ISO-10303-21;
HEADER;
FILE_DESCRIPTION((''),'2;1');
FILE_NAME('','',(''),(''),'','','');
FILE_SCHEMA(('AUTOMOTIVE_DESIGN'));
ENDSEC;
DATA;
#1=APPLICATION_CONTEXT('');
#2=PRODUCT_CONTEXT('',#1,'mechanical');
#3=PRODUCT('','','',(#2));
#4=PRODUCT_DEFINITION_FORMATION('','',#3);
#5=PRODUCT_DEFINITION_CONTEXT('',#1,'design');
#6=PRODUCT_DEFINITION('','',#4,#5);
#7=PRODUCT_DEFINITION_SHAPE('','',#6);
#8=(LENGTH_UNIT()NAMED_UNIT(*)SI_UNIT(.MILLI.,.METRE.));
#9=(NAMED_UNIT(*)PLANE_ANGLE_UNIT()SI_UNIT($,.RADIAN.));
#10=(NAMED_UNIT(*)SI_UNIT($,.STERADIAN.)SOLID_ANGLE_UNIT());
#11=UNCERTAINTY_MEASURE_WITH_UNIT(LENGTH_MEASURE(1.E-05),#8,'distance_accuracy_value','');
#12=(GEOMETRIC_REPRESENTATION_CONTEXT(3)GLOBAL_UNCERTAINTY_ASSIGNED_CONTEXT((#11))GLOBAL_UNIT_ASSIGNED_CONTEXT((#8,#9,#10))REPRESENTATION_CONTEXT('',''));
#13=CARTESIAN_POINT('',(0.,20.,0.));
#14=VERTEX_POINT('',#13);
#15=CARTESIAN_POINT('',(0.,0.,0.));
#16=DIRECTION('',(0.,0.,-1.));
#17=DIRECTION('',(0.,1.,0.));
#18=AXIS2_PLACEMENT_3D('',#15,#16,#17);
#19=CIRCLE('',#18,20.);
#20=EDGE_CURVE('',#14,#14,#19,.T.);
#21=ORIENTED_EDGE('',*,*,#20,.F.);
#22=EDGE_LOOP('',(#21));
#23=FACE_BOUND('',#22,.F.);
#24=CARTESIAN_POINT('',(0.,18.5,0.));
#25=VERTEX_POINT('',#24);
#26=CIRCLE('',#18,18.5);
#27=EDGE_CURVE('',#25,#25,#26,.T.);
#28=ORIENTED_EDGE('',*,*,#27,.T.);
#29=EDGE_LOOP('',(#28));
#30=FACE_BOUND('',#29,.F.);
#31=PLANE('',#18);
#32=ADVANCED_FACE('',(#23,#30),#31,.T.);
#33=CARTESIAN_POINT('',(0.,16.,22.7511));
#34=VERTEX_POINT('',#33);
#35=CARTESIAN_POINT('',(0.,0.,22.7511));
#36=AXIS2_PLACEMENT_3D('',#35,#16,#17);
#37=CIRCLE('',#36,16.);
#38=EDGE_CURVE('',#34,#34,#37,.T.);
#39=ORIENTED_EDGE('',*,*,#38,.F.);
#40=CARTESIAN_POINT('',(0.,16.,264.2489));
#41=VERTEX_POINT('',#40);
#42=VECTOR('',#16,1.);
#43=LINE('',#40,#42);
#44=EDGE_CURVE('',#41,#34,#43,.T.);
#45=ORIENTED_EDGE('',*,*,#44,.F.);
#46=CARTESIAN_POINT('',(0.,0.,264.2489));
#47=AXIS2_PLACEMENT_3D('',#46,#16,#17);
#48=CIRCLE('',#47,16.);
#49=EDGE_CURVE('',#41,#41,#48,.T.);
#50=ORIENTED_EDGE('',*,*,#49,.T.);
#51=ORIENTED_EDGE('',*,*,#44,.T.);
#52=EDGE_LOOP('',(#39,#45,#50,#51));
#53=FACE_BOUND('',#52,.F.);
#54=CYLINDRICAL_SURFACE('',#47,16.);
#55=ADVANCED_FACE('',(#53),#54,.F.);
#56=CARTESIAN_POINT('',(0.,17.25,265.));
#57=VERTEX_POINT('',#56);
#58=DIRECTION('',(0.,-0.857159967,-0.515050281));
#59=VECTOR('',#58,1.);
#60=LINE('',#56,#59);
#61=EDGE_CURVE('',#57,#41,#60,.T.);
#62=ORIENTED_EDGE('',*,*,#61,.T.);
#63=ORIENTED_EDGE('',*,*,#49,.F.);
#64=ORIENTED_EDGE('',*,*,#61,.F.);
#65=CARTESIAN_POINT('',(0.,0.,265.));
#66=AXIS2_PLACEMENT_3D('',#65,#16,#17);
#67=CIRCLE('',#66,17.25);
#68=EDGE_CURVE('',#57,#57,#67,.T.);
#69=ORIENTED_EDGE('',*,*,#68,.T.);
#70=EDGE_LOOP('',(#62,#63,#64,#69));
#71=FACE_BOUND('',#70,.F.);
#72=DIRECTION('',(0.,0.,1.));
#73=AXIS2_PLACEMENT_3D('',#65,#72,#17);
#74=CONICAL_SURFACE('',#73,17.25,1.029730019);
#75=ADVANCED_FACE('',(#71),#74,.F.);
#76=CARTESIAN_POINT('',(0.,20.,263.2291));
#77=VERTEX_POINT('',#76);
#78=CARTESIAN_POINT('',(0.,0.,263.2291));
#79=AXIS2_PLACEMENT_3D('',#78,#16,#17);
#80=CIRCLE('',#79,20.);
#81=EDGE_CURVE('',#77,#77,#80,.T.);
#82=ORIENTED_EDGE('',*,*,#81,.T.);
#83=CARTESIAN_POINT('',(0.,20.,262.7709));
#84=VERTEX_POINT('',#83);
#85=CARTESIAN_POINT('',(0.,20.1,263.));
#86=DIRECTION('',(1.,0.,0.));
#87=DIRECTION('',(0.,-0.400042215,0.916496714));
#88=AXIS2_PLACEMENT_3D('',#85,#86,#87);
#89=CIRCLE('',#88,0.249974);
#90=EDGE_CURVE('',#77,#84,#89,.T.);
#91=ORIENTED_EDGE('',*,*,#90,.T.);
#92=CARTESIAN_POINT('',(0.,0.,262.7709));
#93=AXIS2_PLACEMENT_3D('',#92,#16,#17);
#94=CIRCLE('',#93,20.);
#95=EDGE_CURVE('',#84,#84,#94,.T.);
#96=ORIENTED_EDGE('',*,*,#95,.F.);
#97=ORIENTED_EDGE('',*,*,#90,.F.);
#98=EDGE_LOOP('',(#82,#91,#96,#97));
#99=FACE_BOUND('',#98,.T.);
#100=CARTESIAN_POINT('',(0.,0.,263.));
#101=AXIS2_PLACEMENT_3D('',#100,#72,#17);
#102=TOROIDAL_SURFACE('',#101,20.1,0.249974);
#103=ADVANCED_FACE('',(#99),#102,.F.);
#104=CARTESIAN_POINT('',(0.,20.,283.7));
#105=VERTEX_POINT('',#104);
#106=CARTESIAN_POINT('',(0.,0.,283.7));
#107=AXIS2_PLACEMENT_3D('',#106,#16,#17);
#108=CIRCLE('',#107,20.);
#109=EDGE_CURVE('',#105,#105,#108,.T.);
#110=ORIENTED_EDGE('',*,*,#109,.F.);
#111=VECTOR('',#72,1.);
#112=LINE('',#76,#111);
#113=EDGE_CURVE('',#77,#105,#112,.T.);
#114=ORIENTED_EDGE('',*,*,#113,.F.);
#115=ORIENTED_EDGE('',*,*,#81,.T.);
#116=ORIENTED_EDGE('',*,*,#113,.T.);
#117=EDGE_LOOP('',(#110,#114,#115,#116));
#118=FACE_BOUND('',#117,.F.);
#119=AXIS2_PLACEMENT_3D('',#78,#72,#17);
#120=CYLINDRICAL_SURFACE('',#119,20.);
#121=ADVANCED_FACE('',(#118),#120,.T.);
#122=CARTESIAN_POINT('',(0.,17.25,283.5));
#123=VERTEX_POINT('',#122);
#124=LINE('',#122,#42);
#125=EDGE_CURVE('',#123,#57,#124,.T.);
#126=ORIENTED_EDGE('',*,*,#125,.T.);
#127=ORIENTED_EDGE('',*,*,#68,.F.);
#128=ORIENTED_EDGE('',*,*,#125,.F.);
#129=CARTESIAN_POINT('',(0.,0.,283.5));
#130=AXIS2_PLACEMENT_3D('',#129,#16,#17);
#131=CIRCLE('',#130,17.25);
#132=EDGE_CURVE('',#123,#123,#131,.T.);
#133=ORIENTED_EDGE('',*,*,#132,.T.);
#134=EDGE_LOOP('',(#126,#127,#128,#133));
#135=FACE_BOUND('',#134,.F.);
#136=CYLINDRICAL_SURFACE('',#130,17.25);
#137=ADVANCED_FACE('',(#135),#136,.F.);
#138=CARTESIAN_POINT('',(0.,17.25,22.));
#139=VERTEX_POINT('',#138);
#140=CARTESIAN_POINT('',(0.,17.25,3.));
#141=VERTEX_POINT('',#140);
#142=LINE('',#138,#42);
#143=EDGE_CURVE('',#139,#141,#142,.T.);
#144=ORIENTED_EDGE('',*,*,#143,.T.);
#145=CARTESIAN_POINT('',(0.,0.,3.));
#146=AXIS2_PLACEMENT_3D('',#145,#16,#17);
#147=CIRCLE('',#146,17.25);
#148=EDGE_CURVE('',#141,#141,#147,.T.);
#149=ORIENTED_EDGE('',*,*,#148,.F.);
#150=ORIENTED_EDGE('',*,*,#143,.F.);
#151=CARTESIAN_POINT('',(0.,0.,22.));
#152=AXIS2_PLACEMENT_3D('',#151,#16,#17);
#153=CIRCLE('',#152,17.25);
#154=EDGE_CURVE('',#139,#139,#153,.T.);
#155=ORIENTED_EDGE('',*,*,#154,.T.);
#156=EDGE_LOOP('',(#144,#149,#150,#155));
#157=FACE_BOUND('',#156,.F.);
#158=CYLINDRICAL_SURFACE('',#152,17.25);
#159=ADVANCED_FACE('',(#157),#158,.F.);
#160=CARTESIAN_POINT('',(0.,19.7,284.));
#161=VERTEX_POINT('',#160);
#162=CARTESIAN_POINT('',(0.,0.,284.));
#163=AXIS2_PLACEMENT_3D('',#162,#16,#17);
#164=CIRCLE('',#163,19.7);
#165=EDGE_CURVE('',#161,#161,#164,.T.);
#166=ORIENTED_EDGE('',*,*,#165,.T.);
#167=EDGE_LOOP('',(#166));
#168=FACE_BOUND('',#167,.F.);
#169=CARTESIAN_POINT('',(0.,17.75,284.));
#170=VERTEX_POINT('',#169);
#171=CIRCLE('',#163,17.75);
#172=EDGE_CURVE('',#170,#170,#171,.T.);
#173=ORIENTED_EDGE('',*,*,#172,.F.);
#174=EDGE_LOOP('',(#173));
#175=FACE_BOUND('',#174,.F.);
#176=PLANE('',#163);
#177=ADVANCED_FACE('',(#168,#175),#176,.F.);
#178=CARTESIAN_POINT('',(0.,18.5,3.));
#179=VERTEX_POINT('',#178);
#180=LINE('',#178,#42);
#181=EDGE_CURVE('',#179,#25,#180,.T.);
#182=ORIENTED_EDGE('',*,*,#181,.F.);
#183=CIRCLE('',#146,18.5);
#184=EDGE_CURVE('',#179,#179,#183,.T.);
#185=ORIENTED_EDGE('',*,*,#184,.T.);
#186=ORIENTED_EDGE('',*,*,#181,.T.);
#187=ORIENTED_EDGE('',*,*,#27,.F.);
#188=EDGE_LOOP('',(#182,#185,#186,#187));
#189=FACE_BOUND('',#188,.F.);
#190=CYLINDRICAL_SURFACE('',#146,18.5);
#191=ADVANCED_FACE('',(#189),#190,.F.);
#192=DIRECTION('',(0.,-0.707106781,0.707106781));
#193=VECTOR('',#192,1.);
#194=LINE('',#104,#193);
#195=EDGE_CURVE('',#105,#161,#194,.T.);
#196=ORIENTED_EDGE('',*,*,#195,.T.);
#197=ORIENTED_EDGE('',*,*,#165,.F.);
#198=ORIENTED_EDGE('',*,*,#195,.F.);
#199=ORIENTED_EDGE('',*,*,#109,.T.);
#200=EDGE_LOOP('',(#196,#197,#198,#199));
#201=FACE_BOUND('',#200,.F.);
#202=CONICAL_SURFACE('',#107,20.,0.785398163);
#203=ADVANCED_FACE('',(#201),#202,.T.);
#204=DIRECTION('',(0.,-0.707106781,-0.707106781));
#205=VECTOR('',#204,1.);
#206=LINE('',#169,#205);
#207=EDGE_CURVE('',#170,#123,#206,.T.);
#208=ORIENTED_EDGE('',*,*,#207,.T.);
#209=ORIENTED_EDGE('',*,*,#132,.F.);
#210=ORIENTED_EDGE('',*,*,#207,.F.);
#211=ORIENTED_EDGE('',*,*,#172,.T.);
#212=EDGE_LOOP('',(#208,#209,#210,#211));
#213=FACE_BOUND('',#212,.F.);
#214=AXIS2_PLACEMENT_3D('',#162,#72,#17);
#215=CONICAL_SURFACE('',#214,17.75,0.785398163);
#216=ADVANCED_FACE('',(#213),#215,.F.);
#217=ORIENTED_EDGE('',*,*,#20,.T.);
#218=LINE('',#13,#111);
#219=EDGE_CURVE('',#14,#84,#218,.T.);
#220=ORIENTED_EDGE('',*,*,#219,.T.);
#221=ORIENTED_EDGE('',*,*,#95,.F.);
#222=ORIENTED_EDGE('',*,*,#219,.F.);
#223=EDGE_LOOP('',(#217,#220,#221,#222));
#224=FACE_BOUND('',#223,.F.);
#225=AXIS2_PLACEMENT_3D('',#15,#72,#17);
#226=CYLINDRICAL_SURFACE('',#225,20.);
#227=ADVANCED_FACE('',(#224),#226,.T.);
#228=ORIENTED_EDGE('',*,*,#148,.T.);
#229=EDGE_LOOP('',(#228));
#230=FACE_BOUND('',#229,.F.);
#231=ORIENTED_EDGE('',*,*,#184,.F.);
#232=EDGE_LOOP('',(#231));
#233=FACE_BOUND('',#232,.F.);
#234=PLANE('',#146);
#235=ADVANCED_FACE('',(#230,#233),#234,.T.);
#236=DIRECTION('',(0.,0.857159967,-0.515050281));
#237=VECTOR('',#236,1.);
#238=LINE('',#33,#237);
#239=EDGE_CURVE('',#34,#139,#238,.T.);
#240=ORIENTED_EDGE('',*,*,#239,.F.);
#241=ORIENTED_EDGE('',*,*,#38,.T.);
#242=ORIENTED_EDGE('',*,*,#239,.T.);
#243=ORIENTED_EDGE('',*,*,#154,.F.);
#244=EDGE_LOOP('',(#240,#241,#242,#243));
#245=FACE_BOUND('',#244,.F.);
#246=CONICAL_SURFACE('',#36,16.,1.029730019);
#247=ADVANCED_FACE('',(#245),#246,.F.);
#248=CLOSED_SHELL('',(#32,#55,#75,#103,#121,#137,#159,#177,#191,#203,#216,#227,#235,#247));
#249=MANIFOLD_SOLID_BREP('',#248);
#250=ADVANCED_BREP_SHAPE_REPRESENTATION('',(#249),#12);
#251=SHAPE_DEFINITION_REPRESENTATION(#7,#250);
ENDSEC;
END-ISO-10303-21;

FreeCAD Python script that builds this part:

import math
import FreeCAD as App
import Part
import Sketcher

V = App.Vector
Q = App.Units.Quantity

doc = App.newDocument("Part")
body = doc.addObject("PartDesign::Body", "Body")

sketch1 = body.newObject("Sketcher::SketchObject", "Sketch")
sketch1.AttachmentSupport = (doc.getObject("YZ_Plane"), [""])
sketch1.MapMode = "FlatFace"
sketch1.addGeometry([
    Part.LineSegment(V(20, 283.7, 0), V(19.7, 284, 0)),
    Part.LineSegment(V(19.7, 284, 0), V(17.75, 284, 0)),
    Part.LineSegment(V(17.75, 284, 0), V(17.25, 283.5, 0)),
    Part.LineSegment(V(17.25, 283.5, 0), V(17.25, 265, 0)),
    Part.LineSegment(V(17.25, 265, 0), V(16, 264.25, 0)),
    Part.LineSegment(V(16, 264.25, 0), V(16, 22.75, 0)),
    Part.LineSegment(V(16, 22.75, 0), V(17.25, 22, 0)),
    Part.LineSegment(V(17.25, 22, 0), V(17.25, 3, 0)),
    Part.LineSegment(V(17.25, 3, 0), V(18.5, 3, 0)),
    Part.LineSegment(V(18.5, 3, 0), V(18.5, 0, 0)),
    Part.LineSegment(V(18.5, 0, 0), V(20, 0, 0)),
    Part.LineSegment(V(20, 0, 0), V(20, 262.77, 0)),
    Part.ArcOfCircle(Part.Circle(V(20.1, 263, 0), V(0, 0, 1), 0.25), math.radians(114), math.radians(246)),
    Part.LineSegment(V(20, 263.23, 0), V(20, 283.7, 0)),
], False)
sketch1.addConstraint([
    Sketcher.Constraint("Coincident", 0, 2, 1, 1),
    Sketcher.Constraint("Coincident", 1, 2, 2, 1),
    Sketcher.Constraint("Coincident", 2, 2, 3, 1),
    Sketcher.Constraint("Coincident", 3, 2, 4, 1),
    Sketcher.Constraint("Coincident", 4, 2, 5, 1),
    Sketcher.Constraint("Coincident", 5, 2, 6, 1),
    Sketcher.Constraint("Coincident", 6, 2, 7, 1),
    Sketcher.Constraint("Coincident", 7, 2, 8, 1),
    Sketcher.Constraint("Coincident", 8, 2, 9, 1),
    Sketcher.Constraint("Coincident", 9, 2, 10, 1),
    Sketcher.Constraint("Coincident", 10, 2, 11, 1),
    Sketcher.Constraint("Coincident", 11, 2, 12, 2),
    Sketcher.Constraint("Coincident", 12, 1, 13, 1),
    Sketcher.Constraint("Coincident", 13, 2, 0, 1),
    Sketcher.Constraint("Horizontal", 1),
    Sketcher.Constraint("Vertical", 3),
    Sketcher.Constraint("Vertical", 5),
    Sketcher.Constraint("Vertical", 7),
    Sketcher.Constraint("Horizontal", 8),
    Sketcher.Constraint("Vertical", 9),
    Sketcher.Constraint("Horizontal", 10),
    Sketcher.Constraint("Vertical", 11),
    Sketcher.Constraint("Vertical", 13),
    Sketcher.Constraint("PointOnObject", 9, 2, -1),
    Sketcher.Constraint("Perpendicular", 0, 2),
    Sketcher.Constraint("Vertical", 3, 2, 6, 2),
    Sketcher.Constraint("Vertical", 11, 2, 12, 1),
    Sketcher.Constraint("Equal", 4, 6),
    Sketcher.Constraint("DistanceY", 7, 2, 7, 1, Q("19 mm")),
    Sketcher.Constraint("DistanceY", 9, 2, 9, 1, Q("3 mm")),
    Sketcher.Constraint("Angle", 0, Q("135 deg")),
    Sketcher.Constraint("Angle", 4, Q("-148.9992 deg")),
    Sketcher.Constraint("Radius", 12, Q("0.25 mm")),
    Sketcher.Constraint("DistanceX", 10, 1, 10, 2, Q("1.5 mm")),
    Sketcher.Constraint("DistanceY", 3, 2, 3, 1, Q("18.5 mm")),
    Sketcher.Constraint("DistanceY", -1, 1, 12, 3, Q("263 mm")),
    Sketcher.Constraint("DistanceY", -1, 1, 0, 2, Q("284 mm")),
    Sketcher.Constraint("DistanceY", -1, 1, 3, 2, Q("265 mm")),
    Sketcher.Constraint("DistanceX", -1, 1, 4, 2, Q("16 mm")),
    Sketcher.Constraint("DistanceX", -1, 1, 10, 2, Q("20 mm")),
    Sketcher.Constraint("DistanceX", 1, 2, 1, 1, Q("1.95 mm")),
    Sketcher.Constraint("DistanceX", 8, 1, 8, 2, Q("1.25 mm")),
    Sketcher.Constraint("DistanceX", -1, 1, 12, 3, Q("20.1 mm")),
])
revolution = body.newObject("PartDesign::Revolution", "Revolution")
revolution.Profile = sketch1
revolution.ReferenceAxis = (sketch1, ["V_Axis"])
revolution.Angle = 360

doc.recompute()
